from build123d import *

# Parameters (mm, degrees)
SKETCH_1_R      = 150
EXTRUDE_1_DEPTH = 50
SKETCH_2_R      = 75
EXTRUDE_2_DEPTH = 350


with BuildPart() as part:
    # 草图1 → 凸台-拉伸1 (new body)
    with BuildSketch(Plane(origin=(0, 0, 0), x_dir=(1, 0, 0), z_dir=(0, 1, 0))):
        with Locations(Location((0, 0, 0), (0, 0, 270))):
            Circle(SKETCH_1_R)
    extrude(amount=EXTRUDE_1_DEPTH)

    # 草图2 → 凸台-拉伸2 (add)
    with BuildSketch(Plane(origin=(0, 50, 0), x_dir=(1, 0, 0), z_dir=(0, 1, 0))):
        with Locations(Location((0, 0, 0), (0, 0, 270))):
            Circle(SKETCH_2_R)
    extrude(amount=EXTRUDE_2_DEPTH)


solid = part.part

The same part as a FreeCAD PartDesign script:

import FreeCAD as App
import Part
import Sketcher

V = App.Vector

doc = App.newDocument("Part")
body = doc.addObject("PartDesign::Body", "Body")

# Sketch on XZ plane
sketch1 = body.newObject("Sketcher::SketchObject", "Sketch")
sketch1.AttachmentSupport = (doc.getObject("XZ_Plane"), [""])
sketch1.MapMode = "FlatFace"
sketch1.addGeometry(Part.Circle(V(0, 0, 0), V(0, 0, 1), 150), False)
sketch1.addConstraint(Sketcher.Constraint("Coincident", 0, 3, -1, 1))
sketch1.addConstraint(Sketcher.Constraint("Diameter", 0, 300.0))
pad1 = body.newObject("PartDesign::Pad", "Pad")
pad1.Profile = sketch1
pad1.Length = 50
pad1.Reversed = True

# Sketch on XZ plane
sketch2 = body.newObject("Sketcher::SketchObject", "Sketch001")
sketch2.AttachmentSupport = (doc.getObject("XZ_Plane"), [""])
sketch2.MapMode = "FlatFace"
sketch2.AttachmentOffset = App.Placement(V(0, 0, -50), App.Rotation())
sketch2.addGeometry(Part.Circle(V(0, 0, 0), V(0, 0, 1), 75), False)
sketch2.addConstraint(Sketcher.Constraint("Coincident", 0, 3, -1, 1))
sketch2.addConstraint(Sketcher.Constraint("Diameter", 0, 150.0))
pad2 = body.newObject("PartDesign::Pad", "Pad001")
pad2.Profile = sketch2
pad2.Length = 350
pad2.Reversed = True

doc.recompute()
